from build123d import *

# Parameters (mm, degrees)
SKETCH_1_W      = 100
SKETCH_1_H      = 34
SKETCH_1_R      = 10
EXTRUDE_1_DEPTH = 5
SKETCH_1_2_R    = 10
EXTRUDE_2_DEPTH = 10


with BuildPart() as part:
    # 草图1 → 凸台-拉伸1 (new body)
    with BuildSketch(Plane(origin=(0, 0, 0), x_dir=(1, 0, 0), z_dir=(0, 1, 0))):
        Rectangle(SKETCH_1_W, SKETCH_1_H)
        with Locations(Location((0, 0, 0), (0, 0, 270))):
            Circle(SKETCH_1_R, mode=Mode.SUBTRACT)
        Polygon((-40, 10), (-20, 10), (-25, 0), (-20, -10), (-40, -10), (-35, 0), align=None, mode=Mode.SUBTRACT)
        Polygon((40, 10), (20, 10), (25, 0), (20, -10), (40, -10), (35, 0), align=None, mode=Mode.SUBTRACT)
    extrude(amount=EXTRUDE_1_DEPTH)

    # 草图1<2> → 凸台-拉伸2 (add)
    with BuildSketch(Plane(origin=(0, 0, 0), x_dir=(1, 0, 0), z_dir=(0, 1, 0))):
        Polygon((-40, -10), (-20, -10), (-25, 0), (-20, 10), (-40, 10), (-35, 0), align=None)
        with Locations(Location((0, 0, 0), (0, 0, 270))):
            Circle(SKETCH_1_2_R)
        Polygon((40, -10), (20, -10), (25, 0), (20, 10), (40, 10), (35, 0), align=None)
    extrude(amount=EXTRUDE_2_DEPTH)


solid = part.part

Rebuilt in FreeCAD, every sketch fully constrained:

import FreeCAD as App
import Part
import Sketcher
from FreeCAD import Vector
Q = App.Units.Quantity

doc = App.newDocument("Part")
body = doc.addObject("PartDesign::Body", "Body")

sketch1 = body.newObject("Sketcher::SketchObject", "Sketch")
sketch1.AttachmentSupport = (doc.getObject("XZ_Plane"), [""])
sketch1.MapMode = "FlatFace"
sketch1.addGeometry([
    Part.LineSegment(Vector(-50, -17, 0), Vector(-50, 17, 0)),
    Part.LineSegment(Vector(-50, 17, 0), Vector(50, 17, 0)),
    Part.LineSegment(Vector(50, 17, 0), Vector(50, -17, 0)),
    Part.LineSegment(Vector(50, -17, 0), Vector(-50, -17, 0)),
    Part.LineSegment(Vector(-35, 0, 0), Vector(-40, -10, 0)),
    Part.LineSegment(Vector(-40, -10, 0), Vector(-20, -10, 0)),
    Part.LineSegment(Vector(-20, -10, 0), Vector(-25, 0, 0)),
    Part.LineSegment(Vector(-25, 0, 0), Vector(-20, 10, 0)),
    Part.LineSegment(Vector(-20, 10, 0), Vector(-40, 10, 0)),
    Part.LineSegment(Vector(-40, 10, 0), Vector(-35, 0, 0)),
    Part.Circle(Vector(0, 0, 0), Vector(0, 0, 1), 10),
    Part.LineSegment(Vector(20, -10, 0), Vector(40, -10, 0)),
    Part.LineSegment(Vector(40, -10, 0), Vector(35, 0, 0)),
    Part.LineSegment(Vector(35, 0, 0), Vector(40, 10, 0)),
    Part.LineSegment(Vector(40, 10, 0), Vector(20, 10, 0)),
    Part.LineSegment(Vector(20, 10, 0), Vector(25, 0, 0)),
    Part.LineSegment(Vector(25, 0, 0), Vector(20, -10, 0)),
], False)
sketch1.addConstraint([
    Sketcher.Constraint("Coincident", 0, 2, 1, 1),
    Sketcher.Constraint("Coincident", 1, 2, 2, 1),
    Sketcher.Constraint("Coincident", 2, 2, 3, 1),
    Sketcher.Constraint("Coincident", 3, 2, 0, 1),
    Sketcher.Constraint("Coincident", 4, 2, 5, 1),
    Sketcher.Constraint("Coincident", 5, 2, 6, 1),
    Sketcher.Constraint("Coincident", 6, 2, 7, 1),
    Sketcher.Constraint("Coincident", 7, 2, 8, 1),
    Sketcher.Constraint("Coincident", 8, 2, 9, 1),
    Sketcher.Constraint("Coincident", 9, 2, 4, 1),
    Sketcher.Constraint("Coincident", 11, 2, 12, 1),
    Sketcher.Constraint("Coincident", 12, 2, 13, 1),
    Sketcher.Constraint("Coincident", 13, 2, 14, 1),
    Sketcher.Constraint("Coincident", 14, 2, 15, 1),
    Sketcher.Constraint("Coincident", 15, 2, 16, 1),
    Sketcher.Constraint("Coincident", 16, 2, 11, 1),
    Sketcher.Constraint("Vertical", 0),
    Sketcher.Constraint("Horizontal", 1),
    Sketcher.Constraint("Vertical", 2),
    Sketcher.Constraint("Horizontal", 3),
    Sketcher.Constraint("Horizontal", 5),
    Sketcher.Constraint("Horizontal", 8),
    Sketcher.Constraint("Horizontal", 11),
    Sketcher.Constraint("Horizontal", 14),
    Sketcher.Constraint("Coincident", 10, 3, -1, 1),
    Sketcher.Constraint("Symmetric", 0, 2, 2, 2, -1, 1),
    Sketcher.Constraint("Symmetric", 8, 2, 11, 2, -1, 1),
    Sketcher.Constraint("Symmetric", 9, 2, 12, 2, -1, 1),
    Sketcher.Constraint("Symmetric", 4, 2, 13, 2, -1, 1),
    Sketcher.Constraint("Symmetric", 6, 2, 15, 2, -1, 1),
    Sketcher.Constraint("Symmetric", 4, 2, 11, 2, -2),
    Sketcher.Constraint("PointOnObject", 6, 2, -1),
    Sketcher.Constraint("PointOnObject", 9, 2, -1),
    Sketcher.Constraint("Parallel", 4, 7),
    Sketcher.Constraint("Parallel", 6, 9),
    Sketcher.Constraint("Parallel", 12, 15),
    Sketcher.Constraint("Parallel", 13, 16),
    Sketcher.Constraint("Diameter", 10, Q("20 mm")),
    Sketcher.Constraint("DistanceX", 1, 1, 1, 2, Q("100 mm")),
    Sketcher.Constraint("DistanceX", 5, 1, 5, 2, Q("20 mm")),
    Sketcher.Constraint("DistanceY", 0, 1, 0, 2, Q("34 mm")),
    Sketcher.Constraint("DistanceX", 4, 2, -1, 1, Q("40 mm")),
    Sketcher.Constraint("DistanceY", 4, 2, -1, 1, Q("10 mm")),
    Sketcher.Constraint("DistanceX", 6, 2, -1, 1, Q("25 mm")),
])
pad1 = body.newObject("PartDesign::Pad", "Pad")
pad1.Profile = sketch1
pad1.Length = 5
pad1.Reversed = True

sketch2 = body.newObject("Sketcher::SketchObject", "Sketch001")
sketch2.AttachmentSupport = (doc.getObject("XZ_Plane"), [""])
sketch2.MapMode = "FlatFace"
sketch2.addGeometry([
    Part.LineSegment(Vector(-40, 10, 0), Vector(-20, 10, 0)),
    Part.LineSegment(Vector(-20, 10, 0), Vector(-25, 0, 0)),
    Part.LineSegment(Vector(-25, 0, 0), Vector(-20, -10, 0)),
    Part.LineSegment(Vector(-20, -10, 0), Vector(-40, -10, 0)),
    Part.LineSegment(Vector(-40, -10, 0), Vector(-35, 0, 0)),
    Part.LineSegment(Vector(-35, 0, 0), Vector(-40, 10, 0)),
    Part.Circle(Vector(0, 0, 0), Vector(0, 0, 1), 10),
    Part.LineSegment(Vector(20, 10, 0), Vector(40, 10, 0)),
    Part.LineSegment(Vector(40, 10, 0), Vector(35, 0, 0)),
    Part.LineSegment(Vector(35, 0, 0), Vector(40, -10, 0)),
    Part.LineSegment(Vector(40, -10, 0), Vector(20, -10, 0)),
    Part.LineSegment(Vector(20, -10, 0), Vector(25, 0, 0)),
    Part.LineSegment(Vector(25, 0, 0), Vector(20, 10, 0)),
], False)
sketch2.addConstraint([
    Sketcher.Constraint("Coincident", 0, 2, 1, 1),
    Sketcher.Constraint("Coincident", 1, 2, 2, 1),
    Sketcher.Constraint("Coincident", 2, 2, 3, 1),
    Sketcher.Constraint("Coincident", 3, 2, 4, 1),
    Sketcher.Constraint("Coincident", 4, 2, 5, 1),
    Sketcher.Constraint("Coincident", 5, 2, 0, 1),
    Sketcher.Constraint("Coincident", 7, 2, 8, 1),
    Sketcher.Constraint("Coincident", 8, 2, 9, 1),
    Sketcher.Constraint("Coincident", 9, 2, 10, 1),
    Sketcher.Constraint("Coincident", 10, 2, 11, 1),
    Sketcher.Constraint("Coincident", 11, 2, 12, 1),
    Sketcher.Constraint("Coincident", 12, 2, 7, 1),
    Sketcher.Constraint("Horizontal", 0),
    Sketcher.Constraint("Horizontal", 3),
    Sketcher.Constraint("Horizontal", 7),
    Sketcher.Constraint("Horizontal", 10),
    Sketcher.Constraint("Coincident", 6, 3, -1, 1),
    Sketcher.Constraint("Symmetric", 3, 2, 7, 2, -1, 1),
    Sketcher.Constraint("Symmetric", 4, 2, 8, 2, -1, 1),
    Sketcher.Constraint("Symmetric", 5, 2, 9, 2, -1, 1),
    Sketcher.Constraint("Symmetric", 1, 2, 11, 2, -1, 1),
    Sketcher.Constraint("Symmetric", 5, 2, 7, 2, -2),
    Sketcher.Constraint("PointOnObject", 1, 2, -1),
    Sketcher.Constraint("PointOnObject", 4, 2, -1),
    Sketcher.Constraint("Parallel", 1, 4),
    Sketcher.Constraint("Parallel", 2, 5),
    Sketcher.Constraint("Parallel", 8, 11),
    Sketcher.Constraint("Parallel", 9, 12),
    Sketcher.Constraint("Diameter", 6, Q("20 mm")),
    Sketcher.Constraint("DistanceX", 0, 1, 0, 2, Q("20 mm")),
    Sketcher.Constraint("DistanceX", 0, 2, -1, 1, Q("20 mm")),
    Sketcher.Constraint("DistanceY", -1, 1, 0, 2, Q("10 mm")),
    Sketcher.Constraint("DistanceX", 1, 2, -1, 1, Q("25 mm")),
])
pad2 = body.newObject("PartDesign::Pad", "Pad001")
pad2.Profile = sketch2
pad2.Length = 10
pad2.Reversed = True

doc.recompute()
